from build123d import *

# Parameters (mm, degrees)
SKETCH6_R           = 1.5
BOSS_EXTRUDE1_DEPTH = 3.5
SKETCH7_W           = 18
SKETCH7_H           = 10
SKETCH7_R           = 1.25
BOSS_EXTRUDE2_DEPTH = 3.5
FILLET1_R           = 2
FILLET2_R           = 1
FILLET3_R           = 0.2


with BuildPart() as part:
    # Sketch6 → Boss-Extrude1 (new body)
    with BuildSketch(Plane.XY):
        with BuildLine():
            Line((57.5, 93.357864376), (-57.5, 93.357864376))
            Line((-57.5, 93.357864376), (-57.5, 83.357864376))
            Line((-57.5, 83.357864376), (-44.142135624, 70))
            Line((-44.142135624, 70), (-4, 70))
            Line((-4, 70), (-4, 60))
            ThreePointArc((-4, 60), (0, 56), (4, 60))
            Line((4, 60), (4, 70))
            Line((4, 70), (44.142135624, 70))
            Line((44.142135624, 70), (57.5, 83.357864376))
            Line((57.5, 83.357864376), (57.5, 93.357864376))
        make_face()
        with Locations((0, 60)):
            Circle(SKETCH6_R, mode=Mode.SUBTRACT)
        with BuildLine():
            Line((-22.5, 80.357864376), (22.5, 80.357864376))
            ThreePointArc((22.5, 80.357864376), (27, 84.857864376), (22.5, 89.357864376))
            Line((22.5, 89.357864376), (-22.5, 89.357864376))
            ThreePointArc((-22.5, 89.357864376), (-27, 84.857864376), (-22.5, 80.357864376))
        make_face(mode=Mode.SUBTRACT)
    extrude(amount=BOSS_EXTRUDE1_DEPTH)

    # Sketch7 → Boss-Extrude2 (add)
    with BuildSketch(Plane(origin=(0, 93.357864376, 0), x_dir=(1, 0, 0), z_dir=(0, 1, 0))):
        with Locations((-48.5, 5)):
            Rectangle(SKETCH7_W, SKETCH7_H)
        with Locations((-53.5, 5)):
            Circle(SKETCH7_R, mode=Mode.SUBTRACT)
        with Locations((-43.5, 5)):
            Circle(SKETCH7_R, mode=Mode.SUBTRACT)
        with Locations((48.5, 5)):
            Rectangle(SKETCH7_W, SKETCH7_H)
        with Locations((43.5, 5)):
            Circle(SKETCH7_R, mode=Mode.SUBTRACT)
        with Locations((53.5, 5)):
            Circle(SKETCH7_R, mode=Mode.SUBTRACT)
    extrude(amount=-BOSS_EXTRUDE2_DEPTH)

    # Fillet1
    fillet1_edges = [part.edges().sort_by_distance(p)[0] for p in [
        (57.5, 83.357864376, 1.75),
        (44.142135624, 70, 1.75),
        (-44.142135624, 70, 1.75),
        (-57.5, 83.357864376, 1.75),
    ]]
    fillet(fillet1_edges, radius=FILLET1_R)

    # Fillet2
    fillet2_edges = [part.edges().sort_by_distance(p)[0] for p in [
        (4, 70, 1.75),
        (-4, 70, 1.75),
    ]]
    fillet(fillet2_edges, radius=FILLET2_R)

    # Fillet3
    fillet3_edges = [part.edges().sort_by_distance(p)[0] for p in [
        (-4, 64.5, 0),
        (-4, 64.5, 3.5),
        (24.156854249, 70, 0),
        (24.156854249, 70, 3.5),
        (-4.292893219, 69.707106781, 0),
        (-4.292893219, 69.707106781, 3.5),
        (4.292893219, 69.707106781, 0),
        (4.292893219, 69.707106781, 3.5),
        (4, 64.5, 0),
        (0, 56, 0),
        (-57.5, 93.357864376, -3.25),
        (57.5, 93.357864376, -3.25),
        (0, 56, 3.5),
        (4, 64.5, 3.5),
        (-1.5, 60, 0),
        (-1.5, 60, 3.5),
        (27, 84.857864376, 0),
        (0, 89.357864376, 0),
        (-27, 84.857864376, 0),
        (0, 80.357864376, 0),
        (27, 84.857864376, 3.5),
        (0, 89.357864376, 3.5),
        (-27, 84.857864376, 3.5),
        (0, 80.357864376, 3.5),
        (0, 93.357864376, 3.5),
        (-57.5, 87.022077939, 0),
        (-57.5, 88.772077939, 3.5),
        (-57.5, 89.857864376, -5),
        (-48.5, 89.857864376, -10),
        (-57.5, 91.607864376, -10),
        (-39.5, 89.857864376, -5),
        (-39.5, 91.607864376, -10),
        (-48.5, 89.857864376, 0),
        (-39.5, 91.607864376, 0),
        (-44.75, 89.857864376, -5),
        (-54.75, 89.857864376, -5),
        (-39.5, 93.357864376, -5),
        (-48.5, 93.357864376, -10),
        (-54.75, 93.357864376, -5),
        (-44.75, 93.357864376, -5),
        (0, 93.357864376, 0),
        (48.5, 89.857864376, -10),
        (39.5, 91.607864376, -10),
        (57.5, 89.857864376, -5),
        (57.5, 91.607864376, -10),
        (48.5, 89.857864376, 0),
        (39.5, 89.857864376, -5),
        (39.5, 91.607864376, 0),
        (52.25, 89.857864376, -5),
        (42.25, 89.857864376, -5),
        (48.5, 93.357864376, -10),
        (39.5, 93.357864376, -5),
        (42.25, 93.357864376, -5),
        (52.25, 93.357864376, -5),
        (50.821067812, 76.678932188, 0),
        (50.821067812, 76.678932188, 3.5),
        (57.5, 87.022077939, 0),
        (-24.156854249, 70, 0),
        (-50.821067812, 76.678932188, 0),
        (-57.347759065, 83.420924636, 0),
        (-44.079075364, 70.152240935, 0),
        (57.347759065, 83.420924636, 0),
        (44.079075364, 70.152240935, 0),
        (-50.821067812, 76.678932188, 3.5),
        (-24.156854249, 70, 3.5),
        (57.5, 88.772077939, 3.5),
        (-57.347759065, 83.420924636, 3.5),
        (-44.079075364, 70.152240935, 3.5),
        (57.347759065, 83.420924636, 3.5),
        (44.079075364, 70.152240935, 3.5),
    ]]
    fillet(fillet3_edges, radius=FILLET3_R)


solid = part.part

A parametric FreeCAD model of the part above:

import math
import FreeCAD as App
import Part
import Sketcher


def edges_at(feature, points):
    """Names of the edges that pass closest to the given points."""
    edges = feature.Shape.Edges
    near = lambda p: min(range(len(edges)), key=lambda i: edges[i].distToShape(Part.Vertex(*p))[0])
    return sorted({f"Edge{near(p) + 1}" for p in points})


def add_polygon(sketch, points):
    """Adds a closed chain of lines whose ends are joined by coincident constraints."""
    first, n = sketch.GeometryCount, len(points)
    for a, b in zip(points, points[1:] + points[:1]):
        sketch.addGeometry(Part.LineSegment(App.Vector(*a, 0), App.Vector(*b, 0)), False)
    for i in range(n):
        sketch.addConstraint(Sketcher.Constraint("Coincident", first + i, 2, first + (i + 1) % n, 1))

doc = App.newDocument("Part")
body = doc.addObject("PartDesign::Body", "Body")

sketch1 = doc.addObject("Sketcher::SketchObject", "Sketch")
body.addObject(sketch1)
sketch1.AttachmentSupport = (doc.XY_Plane, [""])
sketch1.MapMode = "FlatFace"
sketch1.addGeometry(Part.LineSegment(App.Vector(57.5, 93.4, 0), App.Vector(-57.5, 93.4, 0)), False)
sketch1.addGeometry(Part.LineSegment(App.Vector(-57.5, 93.4, 0), App.Vector(-57.5, 83.4, 0)), False)
sketch1.addGeometry(Part.LineSegment(App.Vector(-57.5, 83.4, 0), App.Vector(-44.1, 70, 0)), False)
sketch1.addGeometry(Part.LineSegment(App.Vector(-44.1, 70, 0), App.Vector(-4, 70, 0)), False)
sketch1.addGeometry(Part.LineSegment(App.Vector(-4, 70, 0), App.Vector(-4, 60, 0)), False)
sketch1.addGeometry(Part.ArcOfCircle(Part.Circle(App.Vector(0, 60, 0), App.Vector(0, 0, 1), 4), math.radians(180), math.radians(360)), False)
sketch1.addGeometry(Part.LineSegment(App.Vector(4, 60, 0), App.Vector(4, 70, 0)), False)
sketch1.addGeometry(Part.LineSegment(App.Vector(4, 70, 0), App.Vector(44.1, 70, 0)), False)
sketch1.addGeometry(Part.LineSegment(App.Vector(44.1, 70, 0), App.Vector(57.5, 83.4, 0)), False)
sketch1.addGeometry(Part.LineSegment(App.Vector(57.5, 83.4, 0), App.Vector(57.5, 93.4, 0)), False)
sketch1.addGeometry(Part.Circle(App.Vector(0, 60, 0), App.Vector(0, 0, 1), 1.5), False)
sketch1.addGeometry(Part.LineSegment(App.Vector(22.5, 80.4, 0), App.Vector(-22.5, 80.4, 0)), False)
sketch1.addGeometry(Part.ArcOfCircle(Part.Circle(App.Vector(-22.5, 84.9, 0), App.Vector(0, 0, 1), 4.5), math.radians(90), math.radians(270)), False)
sketch1.addGeometry(Part.LineSegment(App.Vector(-22.5, 89.4, 0), App.Vector(22.5, 89.4, 0)), False)
sketch1.addGeometry(Part.ArcOfCircle(Part.Circle(App.Vector(22.5, 84.9, 0), App.Vector(0, 0, 1), 4.5), math.radians(-90), math.radians(90)), False)
sketch1.addConstraint(Sketcher.Constraint("Coincident", 0, 2, 1, 1))
sketch1.addConstraint(Sketcher.Constraint("Coincident", 1, 2, 2, 1))
sketch1.addConstraint(Sketcher.Constraint("Coincident", 2, 2, 3, 1))
sketch1.addConstraint(Sketcher.Constraint("Coincident", 3, 2, 4, 1))
sketch1.addConstraint(Sketcher.Constraint("Tangent", 4, 2, 5, 1))
sketch1.addConstraint(Sketcher.Constraint("Tangent", 5, 2, 6, 1))
sketch1.addConstraint(Sketcher.Constraint("Coincident", 6, 2, 7, 1))
sketch1.addConstraint(Sketcher.Constraint("Coincident", 7, 2, 8, 1))
sketch1.addConstraint(Sketcher.Constraint("Coincident", 8, 2, 9, 1))
sketch1.addConstraint(Sketcher.Constraint("Coincident", 9, 2, 0, 1))
sketch1.addConstraint(Sketcher.Constraint("Tangent", 11, 2, 12, 2))
sketch1.addConstraint(Sketcher.Constraint("Tangent", 12, 1, 13, 1))
sketch1.addConstraint(Sketcher.Constraint("Tangent", 13, 2, 14, 2))
sketch1.addConstraint(Sketcher.Constraint("Tangent", 14, 1, 11, 1))
sketch1.addConstraint(Sketcher.Constraint("Horizontal", 0))
sketch1.addConstraint(Sketcher.Constraint("Vertical", 1))
sketch1.addConstraint(Sketcher.Constraint("Horizontal", 3))
sketch1.addConstraint(Sketcher.Constraint("Vertical", 4))
sketch1.addConstraint(Sketcher.Constraint("Vertical", 6))
sketch1.addConstraint(Sketcher.Constraint("Horizontal", 7))
sketch1.addConstraint(Sketcher.Constraint("Vertical", 9))
sketch1.addConstraint(Sketcher.Constraint("Horizontal", 11))
sketch1.addConstraint(Sketcher.Constraint("Horizontal", 13))
sketch1.addConstraint(Sketcher.Constraint("Coincident", 10, 3, 5, 3))
sketch1.addConstraint(Sketcher.Constraint("Symmetric", 3, 2, 6, 2, -2))
sketch1.addConstraint(Sketcher.Constraint("Symmetric", 1, 2, 8, 2, -2))
sketch1.addConstraint(Sketcher.Constraint("Perpendicular", 2, 8))
sketch1.addConstraint(Sketcher.Constraint("Equal", 3, 7))
sketch1.addConstraint(Sketcher.Constraint("Equal", 1, 4))
sketch1.addConstraint(Sketcher.Constraint("Diameter", 10, 3.0))
sketch1.addConstraint(Sketcher.Constraint("Radius", 5, 4.0))
sketch1.addConstraint(Sketcher.Constraint("Radius", 12, 4.5))
sketch1.addConstraint(Sketcher.Constraint("DistanceX", 0, 2, 0, 1, 115.0))
sketch1.addConstraint(Sketcher.Constraint("DistanceX", 11, 2, 11, 1, 45.0))
sketch1.addConstraint(Sketcher.Constraint("DistanceY", 1, 2, 1, 1, 10.0))
sketch1.addConstraint(Sketcher.Constraint("DistanceY", -1, 1, 5, 3, 60.0))
sketch1.addConstraint(Sketcher.Constraint("DistanceX", 0, 2, 12, 3, 35.0))
sketch1.addConstraint(Sketcher.Constraint("DistanceY", 12, 3, 0, 2, 8.5))
sketch1.addConstraint(Sketcher.Constraint("DistanceX", 3, 1, 3, 2, 40.142136))
pad1 = doc.addObject("PartDesign::Pad", "Pad")
body.addObject(pad1)
pad1.Profile = sketch1
pad1.Length = 3.5

sketch2 = doc.addObject("Sketcher::SketchObject", "Sketch001")
body.addObject(sketch2)
sketch2.AttachmentSupport = (doc.XZ_Plane, [""])
sketch2.MapMode = "FlatFace"
sketch2.AttachmentOffset = App.Placement(App.Vector(0, 0, -93.357864), App.Rotation())
add_polygon(sketch2, [(-57.5, -10), (-57.5, 0), (-39.5, 0), (-39.5, -10)])
sketch2.addGeometry(Part.Circle(App.Vector(-53.5, -5, 0), App.Vector(0, 0, 1), 1.2), False)
sketch2.addGeometry(Part.Circle(App.Vector(-43.5, -5, 0), App.Vector(0, 0, 1), 1.2), False)
add_polygon(sketch2, [(39.5, -10), (39.5, 0), (57.5, 0), (57.5, -10)])
sketch2.addGeometry(Part.Circle(App.Vector(43.5, -5, 0), App.Vector(0, 0, 1), 1.2), False)
sketch2.addGeometry(Part.Circle(App.Vector(53.5, -5, 0), App.Vector(0, 0, 1), 1.2), False)
sketch2.addConstraint(Sketcher.Constraint("Vertical", 0))
sketch2.addConstraint(Sketcher.Constraint("Horizontal", 1))
sketch2.addConstraint(Sketcher.Constraint("Vertical", 2))
sketch2.addConstraint(Sketcher.Constraint("Horizontal", 3))
sketch2.addConstraint(Sketcher.Constraint("Vertical", 6))
sketch2.addConstraint(Sketcher.Constraint("Horizontal", 7))
sketch2.addConstraint(Sketcher.Constraint("Vertical", 8))
sketch2.addConstraint(Sketcher.Constraint("Horizontal", 9))
sketch2.addConstraint(Sketcher.Constraint("Equal", 4, 5))
sketch2.addConstraint(Sketcher.Constraint("Equal", 5, 10))
sketch2.addConstraint(Sketcher.Constraint("Equal", 10, 11))
sketch2.addConstraint(Sketcher.Constraint("Symmetric", 1, 2, 6, 2, -1, 1))
sketch2.addConstraint(Sketcher.Constraint("Symmetric", 5, 3, 10, 3, -2))
sketch2.addConstraint(Sketcher.Constraint("Symmetric", 4, 3, 11, 3, -2))
sketch2.addConstraint(Sketcher.Constraint("Symmetric", 0, 2, 7, 2, -2))
sketch2.addConstraint(Sketcher.Constraint("Horizontal", 4, 3, 5, 3))
sketch2.addConstraint(Sketcher.Constraint("Horizontal", 3, 2, 8, 2))
sketch2.addConstraint(Sketcher.Constraint("Diameter", 4, 2.5))
sketch2.addConstraint(Sketcher.Constraint("DistanceX", 1, 1, 1, 2, 18.0))
sketch2.addConstraint(Sketcher.Constraint("DistanceY", 0, 1, 0, 2, 10.0))
sketch2.addConstraint(Sketcher.Constraint("DistanceY", 4, 3, -1, 1, 5.0))
sketch2.addConstraint(Sketcher.Constraint("DistanceX", 4, 3, 5, 3, 10.0))
sketch2.addConstraint(Sketcher.Constraint("DistanceX", 5, 3, 10, 3, 87.0))
sketch2.addConstraint(Sketcher.Constraint("DistanceX", 0, 2, 4, 3, 4.0))
pad2 = doc.addObject("PartDesign::Pad", "Pad001")
body.addObject(pad2)
pad2.Profile = sketch2
pad2.Length = 3.5
doc.recompute()

fillet = doc.addObject("PartDesign::Fillet", "Fillet")
body.addObject(fillet)
fillet.Base = (pad2, edges_at(pad2, [
    (57.5, 83.358, 1.75),
    (44.142, 70, 1.75),
    (-44.142, 70, 1.75),
    (-57.5, 83.358, 1.75),
]))
fillet.Radius = 2
doc.recompute()

fillet2 = doc.addObject("PartDesign::Fillet", "Fillet001")
body.addObject(fillet2)
fillet2.Base = (fillet, edges_at(fillet, [(4, 70, 1.75), (-4, 70, 1.75)]))
fillet2.Radius = 1
doc.recompute()

fillet3 = doc.addObject("PartDesign::Fillet", "Fillet002")
body.addObject(fillet3)
fillet3.Base = (fillet2, ["Edge1"])
fillet3.UseAllEdges = True
fillet3.Radius = 0.2

doc.recompute()
